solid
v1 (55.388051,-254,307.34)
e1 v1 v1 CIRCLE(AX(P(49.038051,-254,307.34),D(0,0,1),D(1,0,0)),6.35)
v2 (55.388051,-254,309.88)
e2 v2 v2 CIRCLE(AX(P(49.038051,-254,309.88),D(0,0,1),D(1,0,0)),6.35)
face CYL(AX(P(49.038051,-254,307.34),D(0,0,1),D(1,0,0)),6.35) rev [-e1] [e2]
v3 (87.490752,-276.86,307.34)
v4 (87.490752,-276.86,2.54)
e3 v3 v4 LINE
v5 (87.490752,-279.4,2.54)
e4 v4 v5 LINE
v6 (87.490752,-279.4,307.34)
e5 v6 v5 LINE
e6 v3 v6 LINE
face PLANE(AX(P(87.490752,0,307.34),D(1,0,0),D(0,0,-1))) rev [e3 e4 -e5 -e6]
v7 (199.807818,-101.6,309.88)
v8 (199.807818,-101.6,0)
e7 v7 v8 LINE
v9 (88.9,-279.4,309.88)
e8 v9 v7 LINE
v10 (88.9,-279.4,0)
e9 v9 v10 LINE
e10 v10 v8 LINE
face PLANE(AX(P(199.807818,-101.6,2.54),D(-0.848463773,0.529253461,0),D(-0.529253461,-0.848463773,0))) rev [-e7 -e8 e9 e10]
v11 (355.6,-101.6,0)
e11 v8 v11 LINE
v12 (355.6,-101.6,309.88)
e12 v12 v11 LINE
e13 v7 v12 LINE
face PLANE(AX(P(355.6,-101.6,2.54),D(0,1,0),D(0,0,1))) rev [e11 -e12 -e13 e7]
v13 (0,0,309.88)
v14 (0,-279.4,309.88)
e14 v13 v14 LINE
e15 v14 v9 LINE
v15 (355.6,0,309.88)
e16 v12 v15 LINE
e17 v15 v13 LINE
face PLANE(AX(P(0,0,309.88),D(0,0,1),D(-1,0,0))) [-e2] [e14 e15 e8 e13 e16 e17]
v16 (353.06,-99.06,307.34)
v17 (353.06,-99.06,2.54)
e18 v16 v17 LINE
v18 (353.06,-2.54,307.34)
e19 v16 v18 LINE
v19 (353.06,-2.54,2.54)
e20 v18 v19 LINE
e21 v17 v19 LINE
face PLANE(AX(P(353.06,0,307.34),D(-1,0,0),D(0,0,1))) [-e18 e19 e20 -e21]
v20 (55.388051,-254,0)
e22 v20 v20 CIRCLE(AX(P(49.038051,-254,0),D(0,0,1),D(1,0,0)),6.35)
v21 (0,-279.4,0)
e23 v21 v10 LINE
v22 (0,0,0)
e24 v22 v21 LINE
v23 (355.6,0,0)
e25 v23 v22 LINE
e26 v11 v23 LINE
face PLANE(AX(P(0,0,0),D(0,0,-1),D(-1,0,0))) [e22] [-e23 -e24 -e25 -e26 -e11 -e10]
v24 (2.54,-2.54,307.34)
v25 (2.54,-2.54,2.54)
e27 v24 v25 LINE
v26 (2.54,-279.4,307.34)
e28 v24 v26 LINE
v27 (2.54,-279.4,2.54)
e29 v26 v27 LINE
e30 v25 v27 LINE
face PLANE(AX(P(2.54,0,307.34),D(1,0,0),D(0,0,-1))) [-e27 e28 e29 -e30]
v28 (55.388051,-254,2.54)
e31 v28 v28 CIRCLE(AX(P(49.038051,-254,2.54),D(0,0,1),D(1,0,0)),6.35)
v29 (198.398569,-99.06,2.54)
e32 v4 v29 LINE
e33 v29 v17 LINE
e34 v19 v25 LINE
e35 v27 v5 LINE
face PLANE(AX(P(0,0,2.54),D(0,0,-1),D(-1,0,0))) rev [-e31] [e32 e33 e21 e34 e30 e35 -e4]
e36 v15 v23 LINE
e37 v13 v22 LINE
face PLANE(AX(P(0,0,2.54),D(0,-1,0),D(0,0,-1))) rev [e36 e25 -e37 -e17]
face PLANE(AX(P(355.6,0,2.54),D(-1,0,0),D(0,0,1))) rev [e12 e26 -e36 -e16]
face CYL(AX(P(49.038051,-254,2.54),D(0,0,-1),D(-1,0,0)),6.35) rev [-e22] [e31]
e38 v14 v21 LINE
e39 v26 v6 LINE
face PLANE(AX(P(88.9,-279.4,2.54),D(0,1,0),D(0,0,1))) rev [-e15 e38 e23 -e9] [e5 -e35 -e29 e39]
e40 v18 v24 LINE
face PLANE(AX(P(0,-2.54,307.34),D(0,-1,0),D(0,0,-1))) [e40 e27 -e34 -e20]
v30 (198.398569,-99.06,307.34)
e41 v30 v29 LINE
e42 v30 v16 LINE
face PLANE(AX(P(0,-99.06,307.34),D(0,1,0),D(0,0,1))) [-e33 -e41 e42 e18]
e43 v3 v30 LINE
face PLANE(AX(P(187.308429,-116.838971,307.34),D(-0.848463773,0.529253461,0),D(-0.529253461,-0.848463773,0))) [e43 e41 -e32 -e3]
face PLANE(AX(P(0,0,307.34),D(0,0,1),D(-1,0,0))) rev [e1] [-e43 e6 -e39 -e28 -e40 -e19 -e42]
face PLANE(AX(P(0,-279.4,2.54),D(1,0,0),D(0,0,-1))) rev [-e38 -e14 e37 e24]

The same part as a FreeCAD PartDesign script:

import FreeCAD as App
import Part
import Sketcher

V = App.Vector
Q = App.Units.Quantity


def add_polygon(sketch, points):
    """Adds a closed chain of lines whose ends are joined by coincident constraints."""
    first, n = sketch.GeometryCount, len(points)
    for a, b in zip(points, points[1:] + points[:1]):
        sketch.addGeometry(Part.LineSegment(App.Vector(*a, 0), App.Vector(*b, 0)), False)
    for i in range(n):
        sketch.addConstraint(Sketcher.Constraint("Coincident", first + i, 2, first + (i + 1) % n, 1))

doc = App.newDocument("Part")
body = doc.addObject("PartDesign::Body", "Body")

# Sketch on XY plane
sketch1 = body.newObject("Sketcher::SketchObject", "Sketch")
sketch1.AttachmentSupport = (doc.getObject("XY_Plane"), [""])
sketch1.MapMode = "FlatFace"
add_polygon(sketch1, [(356, 0), (0, 0), (0, -279), (89, -279), (200, -102), (356, -102)])  # lines 0-5
sketch1.addGeometry(Part.Circle(V(49, -254, 0), V(0, 0, 1), 6), False)  # 6
sketch1.addConstraint(Sketcher.Constraint("Horizontal", 0))
sketch1.addConstraint(Sketcher.Constraint("Vertical", 1))
sketch1.addConstraint(Sketcher.Constraint("Horizontal", 2))
sketch1.addConstraint(Sketcher.Constraint("Horizontal", 4))
sketch1.addConstraint(Sketcher.Constraint("Vertical", 5))
sketch1.addConstraint(Sketcher.Constraint("Coincident", 0, 2, -1, 1))
sketch1.addConstraint(Sketcher.Constraint("Diameter", 6, Q("0.5 in")))
sketch1.addConstraint(Sketcher.Constraint("DistanceX", 0, 2, 0, 1, Q("14 in")))
sketch1.addConstraint(Sketcher.Constraint("DistanceY", 1, 2, 1, 1, Q("11 in")))
sketch1.addConstraint(Sketcher.Constraint("DistanceY", 5, 1, 5, 2, Q("4 in")))
sketch1.addConstraint(Sketcher.Constraint("DistanceX", 2, 1, 2, 2, Q("3.5 in")))
sketch1.addConstraint(Sketcher.Constraint("DistanceY", 6, 3, -1, 1, Q("10 in")))
sketch1.addConstraint(Sketcher.Constraint("DistanceX", 4, 1, 4, 2, Q("155.792182 mm")))
sketch1.addConstraint(Sketcher.Constraint("DistanceX", -1, 1, 6, 3, Q("49.038051 mm")))
pad1 = body.newObject("PartDesign::Pad", "Pad")
pad1.Profile = sketch1
pad1.Length = Q("0.1 in")

# Sketch on XY plane
sketch2 = body.newObject("Sketcher::SketchObject", "Sketch001")
sketch2.AttachmentSupport = (doc.getObject("XY_Plane"), [""])
sketch2.MapMode = "FlatFace"
sketch2.AttachmentOffset = App.Placement(V(0, 0, 0.1 * 25.4), App.Rotation())
add_polygon(sketch2, [(2.5, -279.4), (2.5, -2.5), (353.1, -2.5), (353.1, -99.1), (198.4, -99.1), (87.5, -276.9), (87.5, -279.4), (88.9, -279.4), (199.8, -101.6), (355.6, -101.6), (355.6, 0), (0, 0), (0, -279.4)])  # lines 0-12
sketch2.addConstraint(Sketcher.Constraint("Vertical", 0))
sketch2.addConstraint(Sketcher.Constraint("Horizontal", 1))
sketch2.addConstraint(Sketcher.Constraint("Vertical", 2))
sketch2.addConstraint(Sketcher.Constraint("Horizontal", 3))
sketch2.addConstraint(Sketcher.Constraint("Vertical", 5))
sketch2.addConstraint(Sketcher.Constraint("Horizontal", 6))
sketch2.addConstraint(Sketcher.Constraint("Horizontal", 8))
sketch2.addConstraint(Sketcher.Constraint("Vertical", 9))
sketch2.addConstraint(Sketcher.Constraint("Horizontal", 10))
sketch2.addConstraint(Sketcher.Constraint("Vertical", 11))
sketch2.addConstraint(Sketcher.Constraint("Horizontal", 12))
sketch2.addConstraint(Sketcher.Constraint("Coincident", 10, 2, -1, 1))
sketch2.addConstraint(Sketcher.Constraint("Parallel", 4, 7))
sketch2.addConstraint(Sketcher.Constraint("Horizontal", 6, 2, 11, 2))
sketch2.addConstraint(Sketcher.Constraint("Equal", 12, 5))
sketch2.addConstraint(Sketcher.Constraint("Equal", 4, 7))
sketch2.addConstraint(Sketcher.Constraint("DistanceX", 10, 2, 10, 1, Q("14 in")))
sketch2.addConstraint(Sketcher.Constraint("DistanceY", 9, 1, 9, 2, Q("4 in")))
sketch2.addConstraint(Sketcher.Constraint("DistanceY", 11, 2, 11, 1, Q("11 in")))
sketch2.addConstraint(Sketcher.Constraint("DistanceX", 1, 1, 1, 2, Q("13.8 in")))
sketch2.addConstraint(Sketcher.Constraint("DistanceX", 12, 1, 12, 2, Q("0.1 in")))
sketch2.addConstraint(Sketcher.Constraint("DistanceY", 0, 1, 0, 2, Q("10.9 in")))
sketch2.addConstraint(Sketcher.Constraint("DistanceX", -1, 1, 6, 2, Q("3.5 in")))
sketch2.addConstraint(Sketcher.Constraint("DistanceX", 3, 2, 3, 1, Q("154.661431 mm")))
sketch2.addConstraint(Sketcher.Constraint("DistanceX", 6, 1, 6, 2, Q("1.409248 mm")))
pad2 = body.newObject("PartDesign::Pad", "Pad001")
pad2.Profile = sketch2
pad2.Length = Q("12 in")
doc.recompute()

datumplane = body.newObject("PartDesign::Plane", "DatumPlane")
datumplane.AttachmentSupport = (doc.getObject("XY_Plane"), [""])
datumplane.MapMode = "FlatFace"
datumplane.AttachmentOffset = App.Placement(V(0, 0, 6.1 * 25.4), App.Rotation())
mirrored = body.newObject("PartDesign::Mirrored", "Mirrored")
mirrored.Originals = [pad1]
mirrored.MirrorPlane = (datumplane, [""])
body.Tip = mirrored

doc.recompute()
